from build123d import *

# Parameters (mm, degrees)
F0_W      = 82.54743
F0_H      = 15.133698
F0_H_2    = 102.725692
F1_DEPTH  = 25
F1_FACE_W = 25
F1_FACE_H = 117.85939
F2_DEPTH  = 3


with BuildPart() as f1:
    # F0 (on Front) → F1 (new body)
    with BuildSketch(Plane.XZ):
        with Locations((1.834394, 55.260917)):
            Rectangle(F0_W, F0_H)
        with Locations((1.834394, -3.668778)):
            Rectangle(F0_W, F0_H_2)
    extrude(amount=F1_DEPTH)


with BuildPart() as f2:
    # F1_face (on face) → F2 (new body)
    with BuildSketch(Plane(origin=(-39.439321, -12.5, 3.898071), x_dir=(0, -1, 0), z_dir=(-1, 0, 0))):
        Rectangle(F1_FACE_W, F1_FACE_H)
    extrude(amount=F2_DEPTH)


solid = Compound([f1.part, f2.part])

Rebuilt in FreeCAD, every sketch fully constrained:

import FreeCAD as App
import Part
import Sketcher
from FreeCAD import Vector

doc = App.newDocument("Part")
body = doc.addObject("PartDesign::Body", "Body")

sketch1 = body.newObject("Sketcher::SketchObject", "Sketch")
sketch1.AttachmentSupport = (doc.getObject("XZ_Plane"), [""])
sketch1.MapMode = "FlatFace"
sketch1.addGeometry(Part.LineSegment(Vector(-39, 63, 0), Vector(-39, -55, 0)), False)
sketch1.addGeometry(Part.LineSegment(Vector(-39, -55, 0), Vector(43, -55, 0)), False)
sketch1.addGeometry(Part.LineSegment(Vector(43, -55, 0), Vector(43, 63, 0)), False)
sketch1.addGeometry(Part.LineSegment(Vector(43, 63, 0), Vector(-39, 63, 0)), False)
sketch1.addConstraint(Sketcher.Constraint("Coincident", 0, 2, 1, 1))
sketch1.addConstraint(Sketcher.Constraint("Coincident", 1, 2, 2, 1))
sketch1.addConstraint(Sketcher.Constraint("Coincident", 2, 2, 3, 1))
sketch1.addConstraint(Sketcher.Constraint("Coincident", 3, 2, 0, 1))
sketch1.addConstraint(Sketcher.Constraint("Vertical", 0))
sketch1.addConstraint(Sketcher.Constraint("Horizontal", 1))
sketch1.addConstraint(Sketcher.Constraint("Vertical", 2))
sketch1.addConstraint(Sketcher.Constraint("Horizontal", 3))
sketch1.addConstraint(Sketcher.Constraint("DistanceX", 1, 1, 1, 2, 82.54743))
sketch1.addConstraint(Sketcher.Constraint("DistanceY", 0, 2, 0, 1, 117.85939))
sketch1.addConstraint(Sketcher.Constraint("DistanceX", 0, 2, -1, 1, 39.439321))
sketch1.addConstraint(Sketcher.Constraint("DistanceY", 0, 2, -1, 1, 55.031624))
pad1 = body.newObject("PartDesign::Pad", "Pad")
pad1.Profile = sketch1
pad1.Length = 25
body2 = doc.addObject("PartDesign::Body", "Body001")

sketch2 = body2.newObject("Sketcher::SketchObject", "Sketch001")
sketch2.AttachmentSupport = (doc.getObject("YZ_Plane001"), [""])
sketch2.MapMode = "FlatFace"
sketch2.AttachmentOffset = App.Placement(Vector(0, 0, -39.439321), App.Rotation())
sketch2.addGeometry(Part.LineSegment(Vector(0, 63, 0), Vector(0, -55, 0)), False)
sketch2.addGeometry(Part.LineSegment(Vector(0, -55, 0), Vector(-25, -55, 0)), False)
sketch2.addGeometry(Part.LineSegment(Vector(-25, -55, 0), Vector(-25, 63, 0)), False)
sketch2.addGeometry(Part.LineSegment(Vector(-25, 63, 0), Vector(0, 63, 0)), False)
sketch2.addConstraint(Sketcher.Constraint("Coincident", 0, 2, 1, 1))
sketch2.addConstraint(Sketcher.Constraint("Coincident", 1, 2, 2, 1))
sketch2.addConstraint(Sketcher.Constraint("Coincident", 2, 2, 3, 1))
sketch2.addConstraint(Sketcher.Constraint("Coincident", 3, 2, 0, 1))
sketch2.addConstraint(Sketcher.Constraint("Vertical", 0))
sketch2.addConstraint(Sketcher.Constraint("Horizontal", 1))
sketch2.addConstraint(Sketcher.Constraint("Vertical", 2))
sketch2.addConstraint(Sketcher.Constraint("Horizontal", 3))
sketch2.addConstraint(Sketcher.Constraint("PointOnObject", 0, 2, -2))
sketch2.addConstraint(Sketcher.Constraint("DistanceX", 1, 2, 1, 1, 25.0))
sketch2.addConstraint(Sketcher.Constraint("DistanceY", 0, 2, 0, 1, 117.85939))
sketch2.addConstraint(Sketcher.Constraint("DistanceY", 0, 2, -1, 1, 55.031624))
pad2 = body2.newObject("PartDesign::Pad", "Pad001")
pad2.Profile = sketch2
pad2.Length = 3
pad2.Reversed = True

doc.recompute()
